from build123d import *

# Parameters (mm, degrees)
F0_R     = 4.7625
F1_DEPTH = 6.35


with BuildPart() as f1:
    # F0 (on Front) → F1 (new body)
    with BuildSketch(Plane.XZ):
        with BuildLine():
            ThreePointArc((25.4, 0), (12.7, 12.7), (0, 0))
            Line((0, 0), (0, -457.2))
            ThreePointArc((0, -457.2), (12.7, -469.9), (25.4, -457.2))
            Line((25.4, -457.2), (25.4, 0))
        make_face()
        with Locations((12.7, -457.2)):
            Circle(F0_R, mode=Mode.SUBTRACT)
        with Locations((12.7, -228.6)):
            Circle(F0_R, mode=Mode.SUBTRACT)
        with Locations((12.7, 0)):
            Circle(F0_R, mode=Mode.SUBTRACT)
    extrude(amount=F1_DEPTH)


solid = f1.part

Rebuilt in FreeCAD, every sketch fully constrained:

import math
import FreeCAD as App
import Part
import Sketcher

V = App.Vector
Q = App.Units.Quantity

doc = App.newDocument("Part")
body = doc.addObject("PartDesign::Body", "Body")

sketch1 = body.newObject("Sketcher::SketchObject", "Sketch")
sketch1.AttachmentSupport = (doc.getObject("XZ_Plane"), [""])
sketch1.MapMode = "FlatFace"
sketch1.addGeometry([
    Part.ArcOfCircle(Part.Circle(V(12.7, 0, 0), V(0, 0, 1), 12.7), math.radians(0), math.radians(180)),
    Part.LineSegment(V(0, 0, 0), V(0, -457.2, 0)),
    Part.ArcOfCircle(Part.Circle(V(12.7, -457.2, 0), V(0, 0, 1), 12.7), math.radians(180), math.radians(360)),
    Part.LineSegment(V(25.4, -457.2, 0), V(25.4, 0, 0)),
    Part.Circle(V(12.7, -457.2, 0), V(0, 0, 1), 4.8),
    Part.Circle(V(12.7, -228.6, 0), V(0, 0, 1), 4.8),
    Part.Circle(V(12.7, 0, 0), V(0, 0, 1), 4.8),
], False)
sketch1.addConstraint([
    Sketcher.Constraint("Tangent", 0, 2, 1, 1),
    Sketcher.Constraint("Tangent", 1, 2, 2, 1),
    Sketcher.Constraint("Tangent", 2, 2, 3, 1),
    Sketcher.Constraint("Tangent", 3, 2, 0, 1),
    Sketcher.Constraint("Vertical", 1),
    Sketcher.Constraint("Vertical", 3),
    Sketcher.Constraint("Coincident", 0, 2, -1, 1),
    Sketcher.Constraint("Coincident", 4, 3, 2, 3),
    Sketcher.Constraint("Coincident", 6, 3, 0, 3),
    Sketcher.Constraint("Equal", 4, 5),
    Sketcher.Constraint("Equal", 5, 6),
    Sketcher.Constraint("Vertical", 4, 3, 5, 3),
    Sketcher.Constraint("Radius", 0, Q("0.5 in")),
    Sketcher.Constraint("DistanceY", 1, 2, 1, 1, Q("18 in")),
    Sketcher.Constraint("Diameter", 4, Q("0.375 in")),
    Sketcher.Constraint("DistanceY", 5, 3, -1, 1, Q("9 in")),
])
pad1 = body.newObject("PartDesign::Pad", "Pad")
pad1.Profile = sketch1
pad1.Length = Q("0.25 in")

doc.recompute()
